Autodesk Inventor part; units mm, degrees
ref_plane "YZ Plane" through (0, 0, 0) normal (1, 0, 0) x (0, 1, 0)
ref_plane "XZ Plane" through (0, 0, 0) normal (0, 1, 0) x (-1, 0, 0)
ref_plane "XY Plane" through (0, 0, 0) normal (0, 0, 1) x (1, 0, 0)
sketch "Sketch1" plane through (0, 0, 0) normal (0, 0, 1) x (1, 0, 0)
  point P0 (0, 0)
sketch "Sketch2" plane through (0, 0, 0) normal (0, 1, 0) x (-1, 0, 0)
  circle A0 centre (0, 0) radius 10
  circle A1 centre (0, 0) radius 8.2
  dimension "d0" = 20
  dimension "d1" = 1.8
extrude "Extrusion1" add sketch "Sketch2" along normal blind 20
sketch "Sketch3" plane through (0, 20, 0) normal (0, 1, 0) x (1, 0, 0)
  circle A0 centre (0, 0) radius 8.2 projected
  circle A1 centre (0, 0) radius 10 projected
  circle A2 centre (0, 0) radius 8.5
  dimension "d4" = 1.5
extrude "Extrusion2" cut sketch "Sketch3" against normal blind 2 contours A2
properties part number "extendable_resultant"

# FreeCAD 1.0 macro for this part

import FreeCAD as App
import Part
import Sketcher

V = App.Vector
Q = App.Units.Quantity

doc = App.newDocument("Part")
body = doc.addObject("PartDesign::Body", "Body")

# Sketch on XZ plane
sketch1 = body.newObject("Sketcher::SketchObject", "Sketch")
sketch1.AttachmentSupport = (doc.getObject("XZ_Plane"), [""])
sketch1.MapMode = "FlatFace"
sketch1.addGeometry(Part.Circle(V(0, 0, 0), V(0, 0, 1), 10), False)
sketch1.addGeometry(Part.Circle(V(0, 0, 0), V(0, 0, 1), 8), False)
sketch1.addConstraint(Sketcher.Constraint("Coincident", 0, 3, -1, 1))
sketch1.addConstraint(Sketcher.Constraint("Coincident", 1, 3, -1, 1))
sketch1.addConstraint(Sketcher.Constraint("Diameter", 0, Q("20 mm")))
sketch1.addConstraint(Sketcher.Constraint("Diameter", 1, Q("16.4 mm")))
pad1 = body.newObject("PartDesign::Pad", "Pad")
pad1.Profile = sketch1
pad1.Length = 20
pad1.Reversed = True

# Sketch on XZ plane
sketch2 = body.newObject("Sketcher::SketchObject", "Sketch001")
sketch2.AttachmentSupport = (doc.getObject("XZ_Plane"), [""])
sketch2.MapMode = "FlatFace"
sketch2.AttachmentOffset = App.Placement(V(0, 0, -20), App.Rotation())
sketch2.addGeometry(Part.Circle(V(0, 0, 0), V(0, 0, 1), 8), False)
sketch2.addGeometry(Part.Circle(V(0, 0, 0), V(0, 0, 1), 8), False)
sketch2.addConstraint(Sketcher.Constraint("Coincident", 0, 3, -1, 1))
sketch2.addConstraint(Sketcher.Constraint("Coincident", 1, 3, -1, 1))
sketch2.addConstraint(Sketcher.Constraint("Diameter", 0, Q("17 mm")))
sketch2.addConstraint(Sketcher.Constraint("Diameter", 1, Q("16.4 mm")))
pocket1 = body.newObject("PartDesign::Pocket", "Pocket")
pocket1.Profile = sketch2
pocket1.Length = 2
pocket1.Reversed = True

doc.recompute()
